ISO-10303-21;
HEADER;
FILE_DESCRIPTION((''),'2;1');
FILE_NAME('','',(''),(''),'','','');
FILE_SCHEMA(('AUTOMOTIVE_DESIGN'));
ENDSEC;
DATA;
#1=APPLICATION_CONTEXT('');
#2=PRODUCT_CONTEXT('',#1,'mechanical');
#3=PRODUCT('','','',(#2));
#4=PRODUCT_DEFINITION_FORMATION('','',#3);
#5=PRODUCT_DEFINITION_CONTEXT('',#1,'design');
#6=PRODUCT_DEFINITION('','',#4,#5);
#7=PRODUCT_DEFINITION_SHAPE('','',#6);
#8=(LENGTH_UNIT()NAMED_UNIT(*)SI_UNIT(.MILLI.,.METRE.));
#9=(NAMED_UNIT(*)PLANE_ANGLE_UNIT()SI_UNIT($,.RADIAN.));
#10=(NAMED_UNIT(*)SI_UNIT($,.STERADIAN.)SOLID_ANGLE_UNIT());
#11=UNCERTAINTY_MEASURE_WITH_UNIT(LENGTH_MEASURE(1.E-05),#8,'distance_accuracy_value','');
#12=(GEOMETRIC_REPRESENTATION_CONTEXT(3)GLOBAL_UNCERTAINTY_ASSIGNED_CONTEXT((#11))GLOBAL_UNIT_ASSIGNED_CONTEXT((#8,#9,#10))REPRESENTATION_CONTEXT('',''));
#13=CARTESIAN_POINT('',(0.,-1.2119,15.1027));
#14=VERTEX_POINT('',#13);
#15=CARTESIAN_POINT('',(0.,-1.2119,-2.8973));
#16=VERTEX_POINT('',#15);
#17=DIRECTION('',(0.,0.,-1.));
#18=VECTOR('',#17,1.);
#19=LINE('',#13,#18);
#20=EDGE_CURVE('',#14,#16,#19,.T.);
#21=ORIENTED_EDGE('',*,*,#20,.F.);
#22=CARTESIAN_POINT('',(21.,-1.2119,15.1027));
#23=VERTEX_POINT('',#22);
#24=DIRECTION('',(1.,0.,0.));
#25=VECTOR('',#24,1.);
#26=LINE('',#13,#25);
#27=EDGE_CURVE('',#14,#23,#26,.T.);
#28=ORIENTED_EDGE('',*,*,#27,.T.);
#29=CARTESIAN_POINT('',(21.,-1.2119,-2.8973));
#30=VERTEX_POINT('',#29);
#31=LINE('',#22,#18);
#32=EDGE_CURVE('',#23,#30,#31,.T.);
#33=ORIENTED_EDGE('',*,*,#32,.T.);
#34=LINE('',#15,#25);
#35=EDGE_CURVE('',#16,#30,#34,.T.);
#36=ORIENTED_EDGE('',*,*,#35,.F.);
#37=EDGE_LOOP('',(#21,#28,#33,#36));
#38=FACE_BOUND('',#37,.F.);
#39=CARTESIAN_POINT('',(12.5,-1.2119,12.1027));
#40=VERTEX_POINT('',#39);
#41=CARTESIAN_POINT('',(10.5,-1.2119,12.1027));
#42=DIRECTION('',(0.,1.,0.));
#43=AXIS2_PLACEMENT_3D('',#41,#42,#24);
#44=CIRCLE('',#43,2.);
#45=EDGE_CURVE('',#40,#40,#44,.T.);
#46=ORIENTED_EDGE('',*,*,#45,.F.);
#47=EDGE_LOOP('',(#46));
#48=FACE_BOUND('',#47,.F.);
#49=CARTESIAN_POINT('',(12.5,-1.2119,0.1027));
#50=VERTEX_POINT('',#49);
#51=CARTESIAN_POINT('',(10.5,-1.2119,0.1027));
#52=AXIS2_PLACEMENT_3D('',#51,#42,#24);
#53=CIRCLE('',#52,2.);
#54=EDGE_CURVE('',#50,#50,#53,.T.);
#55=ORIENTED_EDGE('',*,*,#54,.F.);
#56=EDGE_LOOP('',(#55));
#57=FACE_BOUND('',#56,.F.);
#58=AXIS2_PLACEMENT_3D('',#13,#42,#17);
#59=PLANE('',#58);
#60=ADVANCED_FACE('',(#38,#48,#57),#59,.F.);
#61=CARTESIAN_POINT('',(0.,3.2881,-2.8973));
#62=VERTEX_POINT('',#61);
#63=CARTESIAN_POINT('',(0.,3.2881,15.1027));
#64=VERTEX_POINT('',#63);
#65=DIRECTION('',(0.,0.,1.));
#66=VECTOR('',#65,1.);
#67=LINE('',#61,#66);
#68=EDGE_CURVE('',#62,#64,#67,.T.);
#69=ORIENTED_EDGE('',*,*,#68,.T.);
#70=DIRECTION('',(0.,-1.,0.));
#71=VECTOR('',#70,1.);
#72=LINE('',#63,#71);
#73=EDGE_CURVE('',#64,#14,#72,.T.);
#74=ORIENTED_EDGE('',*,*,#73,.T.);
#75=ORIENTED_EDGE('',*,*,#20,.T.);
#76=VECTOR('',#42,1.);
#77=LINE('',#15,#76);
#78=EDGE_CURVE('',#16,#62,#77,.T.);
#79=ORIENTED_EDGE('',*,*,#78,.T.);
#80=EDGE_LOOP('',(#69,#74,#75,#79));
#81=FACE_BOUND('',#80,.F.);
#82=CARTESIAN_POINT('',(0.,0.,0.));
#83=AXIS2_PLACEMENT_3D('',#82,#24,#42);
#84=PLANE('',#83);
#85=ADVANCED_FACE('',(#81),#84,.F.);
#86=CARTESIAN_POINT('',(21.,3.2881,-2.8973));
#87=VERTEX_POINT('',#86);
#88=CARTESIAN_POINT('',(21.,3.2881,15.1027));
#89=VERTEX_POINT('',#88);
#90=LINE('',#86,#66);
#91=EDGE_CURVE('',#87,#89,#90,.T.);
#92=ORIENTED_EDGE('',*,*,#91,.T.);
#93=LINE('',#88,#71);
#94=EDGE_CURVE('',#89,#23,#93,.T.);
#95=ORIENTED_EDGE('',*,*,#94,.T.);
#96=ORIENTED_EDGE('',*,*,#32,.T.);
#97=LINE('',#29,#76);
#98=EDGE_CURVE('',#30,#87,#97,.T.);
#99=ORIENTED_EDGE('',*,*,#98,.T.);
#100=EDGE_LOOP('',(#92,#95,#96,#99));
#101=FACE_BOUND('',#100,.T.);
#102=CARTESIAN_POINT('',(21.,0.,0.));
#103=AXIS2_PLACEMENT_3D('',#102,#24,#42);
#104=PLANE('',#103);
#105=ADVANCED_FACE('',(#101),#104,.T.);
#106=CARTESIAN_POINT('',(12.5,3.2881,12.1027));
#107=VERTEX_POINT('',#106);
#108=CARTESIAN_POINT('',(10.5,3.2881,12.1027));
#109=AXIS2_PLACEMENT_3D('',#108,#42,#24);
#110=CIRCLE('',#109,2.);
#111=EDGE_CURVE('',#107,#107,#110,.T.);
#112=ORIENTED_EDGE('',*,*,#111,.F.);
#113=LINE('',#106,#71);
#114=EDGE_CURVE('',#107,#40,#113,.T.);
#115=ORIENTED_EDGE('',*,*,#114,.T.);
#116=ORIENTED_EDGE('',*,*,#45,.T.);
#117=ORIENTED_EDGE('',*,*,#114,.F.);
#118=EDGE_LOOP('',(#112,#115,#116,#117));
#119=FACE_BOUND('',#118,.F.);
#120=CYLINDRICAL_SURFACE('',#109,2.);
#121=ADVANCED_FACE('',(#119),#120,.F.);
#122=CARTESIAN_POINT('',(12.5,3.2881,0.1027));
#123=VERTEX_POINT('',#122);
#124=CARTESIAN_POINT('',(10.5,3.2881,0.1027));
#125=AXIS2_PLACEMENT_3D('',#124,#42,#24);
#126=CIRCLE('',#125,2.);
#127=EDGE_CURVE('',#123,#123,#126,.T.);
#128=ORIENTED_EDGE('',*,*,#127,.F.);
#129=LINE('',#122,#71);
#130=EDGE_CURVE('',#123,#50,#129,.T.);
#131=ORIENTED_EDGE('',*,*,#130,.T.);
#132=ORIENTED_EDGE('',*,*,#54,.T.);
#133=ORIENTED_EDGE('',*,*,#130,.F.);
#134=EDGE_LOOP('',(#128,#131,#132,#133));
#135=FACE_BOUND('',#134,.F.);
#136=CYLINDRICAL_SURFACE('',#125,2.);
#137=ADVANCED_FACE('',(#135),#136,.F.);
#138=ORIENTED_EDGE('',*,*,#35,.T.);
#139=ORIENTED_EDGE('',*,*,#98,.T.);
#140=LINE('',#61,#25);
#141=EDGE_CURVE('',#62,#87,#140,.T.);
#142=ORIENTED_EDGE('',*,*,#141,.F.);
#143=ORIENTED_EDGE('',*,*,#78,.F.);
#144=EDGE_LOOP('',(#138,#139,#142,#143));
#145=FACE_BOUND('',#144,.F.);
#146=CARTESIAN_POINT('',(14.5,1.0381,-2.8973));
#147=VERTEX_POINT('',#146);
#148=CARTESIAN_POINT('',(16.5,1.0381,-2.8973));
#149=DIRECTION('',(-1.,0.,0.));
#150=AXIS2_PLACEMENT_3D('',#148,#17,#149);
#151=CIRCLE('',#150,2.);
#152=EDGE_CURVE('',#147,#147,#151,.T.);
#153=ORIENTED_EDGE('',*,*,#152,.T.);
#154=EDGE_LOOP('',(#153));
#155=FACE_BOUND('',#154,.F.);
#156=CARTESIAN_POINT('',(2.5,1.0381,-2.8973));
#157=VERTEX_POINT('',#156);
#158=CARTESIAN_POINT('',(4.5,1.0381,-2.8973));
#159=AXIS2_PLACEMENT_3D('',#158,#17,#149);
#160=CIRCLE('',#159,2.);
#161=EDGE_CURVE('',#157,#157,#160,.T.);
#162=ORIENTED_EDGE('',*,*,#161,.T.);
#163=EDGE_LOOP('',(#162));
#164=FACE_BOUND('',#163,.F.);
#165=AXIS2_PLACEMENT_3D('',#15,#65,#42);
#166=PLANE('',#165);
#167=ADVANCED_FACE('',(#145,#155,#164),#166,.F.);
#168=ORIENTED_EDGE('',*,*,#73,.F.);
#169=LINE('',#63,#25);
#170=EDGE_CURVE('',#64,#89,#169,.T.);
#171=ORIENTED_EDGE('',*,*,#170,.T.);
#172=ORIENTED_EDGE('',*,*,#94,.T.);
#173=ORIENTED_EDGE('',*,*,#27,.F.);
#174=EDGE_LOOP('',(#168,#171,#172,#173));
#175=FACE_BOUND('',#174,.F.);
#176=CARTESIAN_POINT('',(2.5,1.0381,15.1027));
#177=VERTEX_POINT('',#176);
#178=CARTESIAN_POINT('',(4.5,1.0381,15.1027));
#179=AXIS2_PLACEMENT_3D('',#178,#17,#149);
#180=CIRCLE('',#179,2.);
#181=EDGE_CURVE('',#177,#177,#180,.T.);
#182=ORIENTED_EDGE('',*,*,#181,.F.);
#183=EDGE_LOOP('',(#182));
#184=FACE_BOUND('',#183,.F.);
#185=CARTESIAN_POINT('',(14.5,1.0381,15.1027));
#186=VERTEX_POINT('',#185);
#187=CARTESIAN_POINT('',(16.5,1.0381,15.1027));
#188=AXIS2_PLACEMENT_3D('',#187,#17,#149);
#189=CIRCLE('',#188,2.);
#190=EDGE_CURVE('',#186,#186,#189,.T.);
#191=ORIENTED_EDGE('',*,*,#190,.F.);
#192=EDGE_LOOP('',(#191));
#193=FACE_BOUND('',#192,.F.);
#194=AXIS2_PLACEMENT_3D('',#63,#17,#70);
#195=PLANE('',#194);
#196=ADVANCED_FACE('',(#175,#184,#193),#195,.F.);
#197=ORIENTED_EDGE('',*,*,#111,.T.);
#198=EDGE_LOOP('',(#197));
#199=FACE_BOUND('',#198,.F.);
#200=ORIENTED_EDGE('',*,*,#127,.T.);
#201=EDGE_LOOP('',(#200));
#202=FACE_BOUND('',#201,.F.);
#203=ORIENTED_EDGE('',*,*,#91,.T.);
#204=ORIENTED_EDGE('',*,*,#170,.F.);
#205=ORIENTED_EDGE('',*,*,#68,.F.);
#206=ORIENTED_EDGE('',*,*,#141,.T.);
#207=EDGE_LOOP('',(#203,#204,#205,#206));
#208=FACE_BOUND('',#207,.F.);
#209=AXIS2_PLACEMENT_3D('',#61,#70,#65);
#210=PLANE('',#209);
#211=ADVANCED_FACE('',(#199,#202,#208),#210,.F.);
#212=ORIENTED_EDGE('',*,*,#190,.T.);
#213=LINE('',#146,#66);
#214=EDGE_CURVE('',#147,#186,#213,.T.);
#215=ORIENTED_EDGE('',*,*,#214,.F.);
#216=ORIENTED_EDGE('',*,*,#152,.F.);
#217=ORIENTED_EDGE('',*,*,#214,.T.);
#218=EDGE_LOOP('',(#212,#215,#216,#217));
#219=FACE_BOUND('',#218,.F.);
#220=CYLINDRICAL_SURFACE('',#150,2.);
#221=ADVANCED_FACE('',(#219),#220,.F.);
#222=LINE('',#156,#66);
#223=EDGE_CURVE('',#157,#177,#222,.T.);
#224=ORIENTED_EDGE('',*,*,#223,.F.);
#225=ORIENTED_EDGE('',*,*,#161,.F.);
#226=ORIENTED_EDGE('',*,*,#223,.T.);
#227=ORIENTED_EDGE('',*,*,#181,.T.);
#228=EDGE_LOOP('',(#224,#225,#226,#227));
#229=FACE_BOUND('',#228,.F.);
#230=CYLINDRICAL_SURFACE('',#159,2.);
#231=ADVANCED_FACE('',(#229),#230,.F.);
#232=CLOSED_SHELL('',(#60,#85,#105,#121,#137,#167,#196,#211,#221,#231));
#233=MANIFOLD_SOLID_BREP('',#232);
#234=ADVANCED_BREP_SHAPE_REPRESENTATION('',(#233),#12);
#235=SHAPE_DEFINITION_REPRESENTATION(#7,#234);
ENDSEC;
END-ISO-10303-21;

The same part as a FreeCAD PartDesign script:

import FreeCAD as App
import Part
import Sketcher

V = App.Vector
Q = App.Units.Quantity


def add_polygon(sketch, points):
    """Adds a closed chain of lines whose ends are joined by coincident constraints."""
    first, n = sketch.GeometryCount, len(points)
    for a, b in zip(points, points[1:] + points[:1]):
        sketch.addGeometry(Part.LineSegment(App.Vector(*a, 0), App.Vector(*b, 0)), False)
    for i in range(n):
        sketch.addConstraint(Sketcher.Constraint("Coincident", first + i, 2, first + (i + 1) % n, 1))

doc = App.newDocument("Part")
params = doc.addObject("Spreadsheet::Sheet", "Params")
for row, (alias, value) in enumerate([
    ("sketch1_height", "18 mm"),
    ("sketch1_width", "4.5 mm"),
    ("pad1_length", "21 mm"),
    ("sketch2_diameter", "4 mm"),
    ("sketch3_diameter", "4 mm"),
], start=1):
    params.set(f"A{row}", alias)
    params.set(f"B{row}", "=" + value)
    params.setAlias(f"B{row}", alias)

body = doc.addObject("PartDesign::Body", "Body")

# Sketch on YZ plane
sketch1 = body.newObject("Sketcher::SketchObject", "Sketch")
sketch1.AttachmentSupport = (doc.getObject("YZ_Plane"), [""])
sketch1.MapMode = "FlatFace"
add_polygon(sketch1, [(3.3, -2.9), (3.3, 15.1), (-1.2, 15.1), (-1.2, -2.9)])  # lines 0-3
sketch1.addConstraint([
    Sketcher.Constraint("Vertical", 0),
    Sketcher.Constraint("Horizontal", 1),
    Sketcher.Constraint("Vertical", 2),
    Sketcher.Constraint("Horizontal", 3),
    Sketcher.Constraint("DistanceY", 0, 1, 0, 2, Q("18 mm")),
    Sketcher.Constraint("DistanceX", 1, 2, 1, 1, Q("4.5 mm")),
    Sketcher.Constraint("DistanceX", -1, 1, 0, 2, Q("3.288 mm")),
    Sketcher.Constraint("DistanceY", -1, 1, 0, 2, Q("15.1027 mm")),
])
sketch1.setExpression("Constraints[8]", "Params.sketch1_height")
sketch1.setExpression("Constraints[9]", "Params.sketch1_width")
pad1 = body.newObject("PartDesign::Pad", "Pad")
pad1.Profile = sketch1
pad1.setExpression("Length", "Params.pad1_length")

# Sketch on XZ plane
sketch2 = body.newObject("Sketcher::SketchObject", "Sketch001")
sketch2.AttachmentSupport = (doc.getObject("XZ_Plane"), [""])
sketch2.MapMode = "FlatFace"
sketch2.AttachmentOffset = App.Placement(V(0, 0, -3.2881), App.Rotation())
sketch2.addGeometry([
    Part.Circle(V(10.5, 12.1, 0), V(0, 0, 1), 2),
    Part.Circle(V(10.5, 0.1, 0), V(0, 0, 1), 2),
], False)
sketch2.addConstraint([
    Sketcher.Constraint("Equal", 0, 1),
    Sketcher.Constraint("Vertical", 0, 3, 1, 3),
    Sketcher.Constraint("Diameter", 0, Q("4 mm")),
    Sketcher.Constraint("DistanceY", 1, 3, 0, 3, Q("12 mm")),
    Sketcher.Constraint("DistanceX", -1, 1, 0, 3, Q("10.5 mm")),
    Sketcher.Constraint("DistanceY", -1, 1, 0, 3, Q("12.1027 mm")),
])
sketch2.setExpression("Constraints[2]", "Params.sketch2_diameter")
pocket1 = body.newObject("PartDesign::Pocket", "Pocket")
pocket1.Profile = sketch2
pocket1.Type = "ThroughAll"
pocket1.Reversed = True

# Sketch on XY plane
sketch3 = body.newObject("Sketcher::SketchObject", "Sketch002")
sketch3.AttachmentSupport = (doc.getObject("XY_Plane"), [""])
sketch3.MapMode = "FlatFace"
sketch3.AttachmentOffset = App.Placement(V(0, 0, -2.8973), App.Rotation())
sketch3.addGeometry([
    Part.Circle(V(4.5, 1, 0), V(0, 0, 1), 2),
    Part.Circle(V(16.5, 1, 0), V(0, 0, 1), 2),
], False)
sketch3.addConstraint([
    Sketcher.Constraint("Equal", 0, 1),
    Sketcher.Constraint("Horizontal", 0, 3, 1, 3),
    Sketcher.Constraint("Diameter", 0, Q("4 mm")),
    Sketcher.Constraint("DistanceX", 0, 3, 1, 3, Q("12 mm")),
    Sketcher.Constraint("DistanceX", -1, 1, 0, 3, Q("4.5 mm")),
    Sketcher.Constraint("DistanceY", -1, 1, 0, 3, Q("1.038 mm")),
])
sketch3.setExpression("Constraints[2]", "Params.sketch3_diameter")
pocket2 = body.newObject("PartDesign::Pocket", "Pocket001")
pocket2.Profile = sketch3
pocket2.Type = "ThroughAll"
pocket2.Reversed = True

doc.recompute()
